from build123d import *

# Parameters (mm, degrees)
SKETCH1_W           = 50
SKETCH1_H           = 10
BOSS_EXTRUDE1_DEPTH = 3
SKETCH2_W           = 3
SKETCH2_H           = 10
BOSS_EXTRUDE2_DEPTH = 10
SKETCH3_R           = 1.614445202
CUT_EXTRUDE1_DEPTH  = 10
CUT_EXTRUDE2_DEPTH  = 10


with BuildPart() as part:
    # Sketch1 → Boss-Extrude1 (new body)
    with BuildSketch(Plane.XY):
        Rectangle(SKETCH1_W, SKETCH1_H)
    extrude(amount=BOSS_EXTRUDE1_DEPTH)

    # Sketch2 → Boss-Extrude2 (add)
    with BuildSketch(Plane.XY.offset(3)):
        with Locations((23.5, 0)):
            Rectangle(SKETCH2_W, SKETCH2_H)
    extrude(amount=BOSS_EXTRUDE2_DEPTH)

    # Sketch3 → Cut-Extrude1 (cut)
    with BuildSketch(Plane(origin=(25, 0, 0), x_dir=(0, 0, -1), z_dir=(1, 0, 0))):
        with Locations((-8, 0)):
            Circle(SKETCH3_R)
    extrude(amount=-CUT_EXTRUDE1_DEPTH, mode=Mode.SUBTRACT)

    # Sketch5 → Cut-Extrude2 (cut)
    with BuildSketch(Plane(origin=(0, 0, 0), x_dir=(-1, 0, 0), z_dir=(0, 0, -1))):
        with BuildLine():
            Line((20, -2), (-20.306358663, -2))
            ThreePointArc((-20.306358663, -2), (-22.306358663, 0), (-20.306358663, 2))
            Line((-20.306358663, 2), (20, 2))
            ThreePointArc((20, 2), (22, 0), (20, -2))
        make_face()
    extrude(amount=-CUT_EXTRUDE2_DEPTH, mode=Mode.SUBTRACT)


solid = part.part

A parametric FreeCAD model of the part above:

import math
import FreeCAD as App
import Part
import Sketcher
Q = App.Units.Quantity

doc = App.newDocument("Part")
body = doc.addObject("PartDesign::Body", "Body")

sketch1 = body.newObject("Sketcher::SketchObject", "Sketch")
sketch1.AttachmentSupport = (doc.getObject("XY_Plane"), [""])
sketch1.MapMode = "FlatFace"
sketch1.addGeometry([
    Part.LineSegment(App.Vector(-25, 5, 0), App.Vector(-25, -5, 0)),
    Part.LineSegment(App.Vector(-25, -5, 0), App.Vector(25, -5, 0)),
    Part.LineSegment(App.Vector(25, -5, 0), App.Vector(25, 5, 0)),
    Part.LineSegment(App.Vector(25, 5, 0), App.Vector(-25, 5, 0)),
], False)
sketch1.addConstraint([
    Sketcher.Constraint("Coincident", 0, 2, 1, 1),
    Sketcher.Constraint("Coincident", 1, 2, 2, 1),
    Sketcher.Constraint("Coincident", 2, 2, 3, 1),
    Sketcher.Constraint("Coincident", 3, 2, 0, 1),
    Sketcher.Constraint("Vertical", 0),
    Sketcher.Constraint("Horizontal", 1),
    Sketcher.Constraint("Vertical", 2),
    Sketcher.Constraint("Horizontal", 3),
    Sketcher.Constraint("Symmetric", 0, 2, 2, 2, -1, 1),
    Sketcher.Constraint("DistanceX", 1, 1, 1, 2, Q("50 mm")),
    Sketcher.Constraint("DistanceY", 0, 2, 0, 1, Q("10 mm")),
])
pad1 = body.newObject("PartDesign::Pad", "Pad")
pad1.Profile = sketch1
pad1.Length = 3

sketch2 = body.newObject("Sketcher::SketchObject", "Sketch001")
sketch2.AttachmentSupport = (doc.getObject("XY_Plane"), [""])
sketch2.MapMode = "FlatFace"
sketch2.AttachmentOffset = App.Placement(App.Vector(0, 0, 3), App.Rotation())
sketch2.addGeometry([
    Part.LineSegment(App.Vector(22, 5, 0), App.Vector(22, -5, 0)),
    Part.LineSegment(App.Vector(22, -5, 0), App.Vector(25, -5, 0)),
    Part.LineSegment(App.Vector(25, -5, 0), App.Vector(25, 5, 0)),
    Part.LineSegment(App.Vector(25, 5, 0), App.Vector(22, 5, 0)),
], False)
sketch2.addConstraint([
    Sketcher.Constraint("Coincident", 0, 2, 1, 1),
    Sketcher.Constraint("Coincident", 1, 2, 2, 1),
    Sketcher.Constraint("Coincident", 2, 2, 3, 1),
    Sketcher.Constraint("Coincident", 3, 2, 0, 1),
    Sketcher.Constraint("Vertical", 0),
    Sketcher.Constraint("Horizontal", 1),
    Sketcher.Constraint("Vertical", 2),
    Sketcher.Constraint("Horizontal", 3),
    Sketcher.Constraint("DistanceX", 1, 1, 1, 2, Q("3 mm")),
    Sketcher.Constraint("DistanceY", 0, 2, 0, 1, Q("10 mm")),
    Sketcher.Constraint("DistanceX", -1, 1, 0, 2, Q("22 mm")),
    Sketcher.Constraint("DistanceY", 0, 2, -1, 1, Q("5 mm")),
])
pad2 = body.newObject("PartDesign::Pad", "Pad001")
pad2.Profile = sketch2
pad2.Length = 10

sketch3 = body.newObject("Sketcher::SketchObject", "Sketch002")
sketch3.AttachmentSupport = (doc.getObject("YZ_Plane"), [""])
sketch3.MapMode = "FlatFace"
sketch3.AttachmentOffset = App.Placement(App.Vector(0, 0, 25), App.Rotation())
sketch3.addGeometry(Part.Circle(App.Vector(0, 8, 0), App.Vector(0, 0, 1), 1.6), False)
sketch3.addConstraint([
    Sketcher.Constraint("PointOnObject", 0, 3, -2),
    Sketcher.Constraint("DistanceY", -1, 1, 0, 3, Q("8 mm")),
    Sketcher.Constraint("Diameter", 0, Q("3.22889 mm")),
])
pocket1 = body.newObject("PartDesign::Pocket", "Pocket")
pocket1.Profile = sketch3
pocket1.Length = 10

sketch4 = body.newObject("Sketcher::SketchObject", "Sketch003")
sketch4.AttachmentSupport = (doc.getObject("XY_Plane"), [""])
sketch4.MapMode = "FlatFace"
sketch4.addGeometry([
    Part.LineSegment(App.Vector(20.3, -2, 0), App.Vector(-20, -2, 0)),
    Part.ArcOfCircle(Part.Circle(App.Vector(-20, 0, 0), App.Vector(0, 0, 1), 2), math.radians(90), math.radians(270)),
    Part.LineSegment(App.Vector(-20, 2, 0), App.Vector(20.3, 2, 0)),
    Part.ArcOfCircle(Part.Circle(App.Vector(20.3, 0, 0), App.Vector(0, 0, 1), 2), math.radians(-90), math.radians(90)),
], False)
sketch4.addConstraint([
    Sketcher.Constraint("Tangent", 0, 2, 1, 2),
    Sketcher.Constraint("Tangent", 1, 1, 2, 1),
    Sketcher.Constraint("Tangent", 2, 2, 3, 2),
    Sketcher.Constraint("Tangent", 3, 1, 0, 1),
    Sketcher.Constraint("Horizontal", 0),
    Sketcher.Constraint("Horizontal", 2),
    Sketcher.Constraint("PointOnObject", 1, 3, -1),
    Sketcher.Constraint("Radius", 1, Q("2 mm")),
    Sketcher.Constraint("DistanceX", 1, 3, -1, 1, Q("20 mm")),
    Sketcher.Constraint("DistanceX", 0, 2, 0, 1, Q("40.306359 mm")),
])
pocket2 = body.newObject("PartDesign::Pocket", "Pocket001")
pocket2.Profile = sketch4
pocket2.Length = 10
pocket2.Reversed = True

doc.recompute()
